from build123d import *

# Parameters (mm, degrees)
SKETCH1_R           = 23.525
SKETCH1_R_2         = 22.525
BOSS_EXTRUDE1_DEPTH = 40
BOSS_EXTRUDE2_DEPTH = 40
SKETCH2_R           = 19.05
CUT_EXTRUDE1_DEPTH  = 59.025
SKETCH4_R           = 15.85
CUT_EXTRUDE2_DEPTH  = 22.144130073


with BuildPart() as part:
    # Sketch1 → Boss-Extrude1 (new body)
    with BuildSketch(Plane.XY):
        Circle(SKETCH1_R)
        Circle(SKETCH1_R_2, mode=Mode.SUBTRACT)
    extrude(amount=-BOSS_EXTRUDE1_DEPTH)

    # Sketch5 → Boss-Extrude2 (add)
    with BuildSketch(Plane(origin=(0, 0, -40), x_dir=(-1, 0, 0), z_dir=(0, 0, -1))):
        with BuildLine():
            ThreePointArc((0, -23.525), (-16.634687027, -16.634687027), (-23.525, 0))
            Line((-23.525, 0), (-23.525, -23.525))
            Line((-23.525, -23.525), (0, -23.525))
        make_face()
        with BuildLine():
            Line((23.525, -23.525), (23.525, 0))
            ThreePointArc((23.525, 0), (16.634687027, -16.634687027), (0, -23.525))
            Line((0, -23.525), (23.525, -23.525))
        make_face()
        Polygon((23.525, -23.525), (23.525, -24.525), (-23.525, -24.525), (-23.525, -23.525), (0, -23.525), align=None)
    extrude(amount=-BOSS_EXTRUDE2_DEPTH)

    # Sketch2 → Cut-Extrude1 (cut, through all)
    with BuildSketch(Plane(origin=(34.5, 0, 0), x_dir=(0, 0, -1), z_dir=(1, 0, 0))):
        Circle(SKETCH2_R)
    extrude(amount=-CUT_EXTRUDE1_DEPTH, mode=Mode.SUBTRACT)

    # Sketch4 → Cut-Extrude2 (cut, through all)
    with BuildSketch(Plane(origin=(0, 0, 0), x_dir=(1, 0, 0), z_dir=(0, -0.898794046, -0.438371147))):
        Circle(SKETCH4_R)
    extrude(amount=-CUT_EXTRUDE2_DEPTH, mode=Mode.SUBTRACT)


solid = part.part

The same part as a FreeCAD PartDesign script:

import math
import FreeCAD as App
import Part
import Sketcher

V = App.Vector

doc = App.newDocument("Part")
body = doc.addObject("PartDesign::Body", "Body")

sketch1 = body.newObject("Sketcher::SketchObject", "Sketch")
sketch1.AttachmentSupport = (doc.getObject("XY_Plane"), [""])
sketch1.MapMode = "FlatFace"
sketch1.addGeometry([
    Part.Circle(V(0, 0, 0), V(0, 0, 1), 24),
    Part.Circle(V(0, 0, 0), V(0, 0, 1), 23),
], False)
sketch1.addConstraint([
    Sketcher.Constraint("Coincident", 0, 3, -1, 1),
    Sketcher.Constraint("Coincident", 1, 3, -1, 1),
    Sketcher.Constraint("Diameter", 0, 47.05),
    Sketcher.Constraint("Diameter", 1, 45.05),
])
pad1 = body.newObject("PartDesign::Pad", "Pad")
pad1.Profile = sketch1
pad1.Length = 40
pad1.Reversed = True

sketch2 = body.newObject("Sketcher::SketchObject", "Sketch001")
sketch2.AttachmentSupport = (doc.getObject("XY_Plane"), [""])
sketch2.MapMode = "FlatFace"
sketch2.AttachmentOffset = App.Placement(V(0, 0, -40), App.Rotation())
sketch2.addGeometry([
    Part.ArcOfCircle(Part.Circle(V(0, 0, 0), V(0, 0, 1), 24), math.radians(-90), math.radians(0)),
    Part.LineSegment(V(24, 0, 0), V(24, -25, 0)),
    Part.LineSegment(V(24, -25, 0), V(-24, -25, 0)),
    Part.LineSegment(V(-24, -25, 0), V(-24, 0, 0)),
    Part.ArcOfCircle(Part.Circle(V(0, 0, 0), V(0, 0, 1), 24), math.radians(-180), math.radians(-90)),
], False)
sketch2.addConstraint([
    Sketcher.Constraint("Tangent", 0, 2, 1, 1),
    Sketcher.Constraint("Coincident", 1, 2, 2, 1),
    Sketcher.Constraint("Coincident", 2, 2, 3, 1),
    Sketcher.Constraint("Tangent", 3, 2, 4, 1),
    Sketcher.Constraint("Tangent", 4, 2, 0, 1),
    Sketcher.Constraint("Vertical", 1),
    Sketcher.Constraint("Horizontal", 2),
    Sketcher.Constraint("Vertical", 3),
    Sketcher.Constraint("Coincident", 0, 3, -1, 1),
    Sketcher.Constraint("Equal", 0, 4),
    Sketcher.Constraint("PointOnObject", 4, 2, -2),
    Sketcher.Constraint("Radius", 0, 23.525),
    Sketcher.Constraint("DistanceY", 1, 2, 4, 2, 1.0),
])
pad2 = body.newObject("PartDesign::Pad", "Pad001")
pad2.Profile = sketch2
pad2.Length = 40

sketch3 = body.newObject("Sketcher::SketchObject", "Sketch002")
sketch3.AttachmentSupport = (doc.getObject("YZ_Plane"), [""])
sketch3.MapMode = "FlatFace"
sketch3.AttachmentOffset = App.Placement(V(0, 0, 34.5), App.Rotation())
sketch3.addGeometry(Part.Circle(V(0, 0, 0), V(0, 0, 1), 19), False)
sketch3.addConstraint([
    Sketcher.Constraint("Coincident", 0, 3, -1, 1),
    Sketcher.Constraint("Diameter", 0, 38.1),
])
pocket1 = body.newObject("PartDesign::Pocket", "Pocket")
pocket1.Profile = sketch3
pocket1.Type = "ThroughAll"

sketch4 = body.newObject("Sketcher::SketchObject", "Sketch003")
sketch4.Placement = App.Placement(V(0, 0, 0), App.Rotation(V(1, 0, 0), V(0, -0.438371147, 0.898794046), V(0, -0.898794046, -0.438371147), "ZXY"))
sketch4.addGeometry(Part.Circle(V(0, 0, 0), V(0, 0, 1), 16), False)
sketch4.addConstraint([
    Sketcher.Constraint("Coincident", 0, 3, -1, 1),
    Sketcher.Constraint("Diameter", 0, 31.7),
])
pocket2 = body.newObject("PartDesign::Pocket", "Pocket001")
pocket2.Profile = sketch4
pocket2.Type = "ThroughAll"

doc.recompute()
